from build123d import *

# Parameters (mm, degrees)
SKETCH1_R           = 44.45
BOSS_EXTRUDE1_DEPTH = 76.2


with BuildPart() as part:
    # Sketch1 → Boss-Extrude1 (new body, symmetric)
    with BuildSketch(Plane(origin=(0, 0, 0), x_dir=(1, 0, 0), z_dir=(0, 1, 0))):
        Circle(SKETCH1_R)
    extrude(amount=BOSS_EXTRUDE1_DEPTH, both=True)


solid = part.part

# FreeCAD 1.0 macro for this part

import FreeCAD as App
import Part
import Sketcher
from FreeCAD import Vector
Q = App.Units.Quantity

doc = App.newDocument("Part")
params = doc.addObject("Spreadsheet::Sheet", "Params")
for row, (alias, value) in enumerate([
    ("sketch1_diameter", "3.5 in"),
    ("pad1_length", "6 in"),
], start=1):
    params.set(f"A{row}", alias)
    params.set(f"B{row}", "=" + value)
    params.setAlias(f"B{row}", alias)

body = doc.addObject("PartDesign::Body", "Body")

sketch1 = body.newObject("Sketcher::SketchObject", "Sketch")
sketch1.AttachmentSupport = (doc.getObject("XZ_Plane"), [""])
sketch1.MapMode = "FlatFace"
sketch1.addGeometry(Part.Circle(Vector(0, 0, 0), Vector(0, 0, 1), 44), False)
sketch1.addConstraint(Sketcher.Constraint("Coincident", 0, 3, -1, 1))
sketch1.addConstraint(Sketcher.Constraint("Diameter", 0, Q("3.5 in")))
sketch1.setExpression("Constraints[1]", "Params.sketch1_diameter")
pad1 = body.newObject("PartDesign::Pad", "Pad")
pad1.Profile = sketch1
pad1.setExpression("Length", "Params.pad1_length")
pad1.Midplane = True

doc.recompute()
